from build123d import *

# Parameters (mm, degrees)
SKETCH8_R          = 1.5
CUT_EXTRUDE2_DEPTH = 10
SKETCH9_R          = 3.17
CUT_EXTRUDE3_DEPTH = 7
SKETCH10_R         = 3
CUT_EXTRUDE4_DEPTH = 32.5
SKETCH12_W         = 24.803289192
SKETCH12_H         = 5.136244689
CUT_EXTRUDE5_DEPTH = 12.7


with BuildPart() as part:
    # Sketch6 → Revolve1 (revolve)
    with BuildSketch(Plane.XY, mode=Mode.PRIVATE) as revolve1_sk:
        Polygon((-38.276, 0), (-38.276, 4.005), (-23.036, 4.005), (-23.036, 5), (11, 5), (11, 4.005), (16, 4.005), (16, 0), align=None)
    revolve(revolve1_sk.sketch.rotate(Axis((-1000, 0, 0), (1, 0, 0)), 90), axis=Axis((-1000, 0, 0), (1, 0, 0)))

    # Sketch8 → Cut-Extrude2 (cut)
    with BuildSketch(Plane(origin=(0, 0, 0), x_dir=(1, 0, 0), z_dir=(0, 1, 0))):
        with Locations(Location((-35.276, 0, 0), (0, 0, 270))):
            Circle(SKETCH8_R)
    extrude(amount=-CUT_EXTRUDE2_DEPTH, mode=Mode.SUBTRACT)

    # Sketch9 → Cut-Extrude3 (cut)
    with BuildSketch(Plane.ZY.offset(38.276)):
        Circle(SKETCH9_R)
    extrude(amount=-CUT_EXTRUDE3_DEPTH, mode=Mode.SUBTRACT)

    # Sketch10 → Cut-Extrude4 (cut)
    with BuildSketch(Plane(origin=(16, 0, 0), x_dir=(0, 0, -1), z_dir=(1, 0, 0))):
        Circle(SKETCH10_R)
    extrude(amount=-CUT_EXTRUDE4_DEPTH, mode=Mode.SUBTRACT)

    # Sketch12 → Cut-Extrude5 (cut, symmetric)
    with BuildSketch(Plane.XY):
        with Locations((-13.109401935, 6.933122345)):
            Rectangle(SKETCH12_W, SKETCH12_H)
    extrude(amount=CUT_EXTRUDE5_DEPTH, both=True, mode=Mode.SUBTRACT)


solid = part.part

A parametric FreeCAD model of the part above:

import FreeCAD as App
import Part
import Sketcher
Q = App.Units.Quantity


def add_polygon(sketch, points):
    """Adds a closed chain of lines whose ends are joined by coincident constraints."""
    first, n = sketch.GeometryCount, len(points)
    for a, b in zip(points, points[1:] + points[:1]):
        sketch.addGeometry(Part.LineSegment(App.Vector(*a, 0), App.Vector(*b, 0)), False)
    for i in range(n):
        sketch.addConstraint(Sketcher.Constraint("Coincident", first + i, 2, first + (i + 1) % n, 1))

doc = App.newDocument("Part")
params = doc.addObject("Spreadsheet::Sheet", "Params")
for row, (alias, value) in enumerate([
    ("sketch1_width", "5 mm"),
    ("sketch1_width2", "15.24 mm"),
    ("revolution_angle", "360 deg"),
    ("sketch2_diameter", "3 mm"),
    ("pocket1_length", "10 mm"),
    ("sketch3_diameter", "6.34 mm"),
    ("pocket2_length", "7 mm"),
    ("sketch4_diameter", "6 mm"),
    ("pocket3_length", "32.5 mm"),
    ("pocket4_length", "25.4 mm"),
], start=1):
    params.set(f"A{row}", alias)
    params.set(f"B{row}", "=" + value)
    params.setAlias(f"B{row}", alias)

body = doc.addObject("PartDesign::Body", "Body")

# Sketch on XY plane
sketch1 = body.newObject("Sketcher::SketchObject", "Sketch")
sketch1.AttachmentSupport = (doc.getObject("XY_Plane"), [""])
sketch1.MapMode = "FlatFace"
add_polygon(sketch1, [(-38.276, 4.005), (-38.276, 0), (16, 0), (16, 4.005), (11, 4.005), (11, 5), (-23.036, 5), (-23.036, 4.005)])  # lines 0-7
sketch1.addConstraint(Sketcher.Constraint("Vertical", 0))
sketch1.addConstraint(Sketcher.Constraint("Horizontal", 1))
sketch1.addConstraint(Sketcher.Constraint("Vertical", 2))
sketch1.addConstraint(Sketcher.Constraint("Horizontal", 3))
sketch1.addConstraint(Sketcher.Constraint("Vertical", 4))
sketch1.addConstraint(Sketcher.Constraint("Horizontal", 5))
sketch1.addConstraint(Sketcher.Constraint("Vertical", 6))
sketch1.addConstraint(Sketcher.Constraint("Horizontal", 7))
sketch1.addConstraint(Sketcher.Constraint("PointOnObject", 0, 2, -1))
sketch1.addConstraint(Sketcher.Constraint("Horizontal", 3, 2, 6, 2))
sketch1.addConstraint(Sketcher.Constraint("DistanceX", 3, 2, 3, 1, Q("5 mm")))
sketch1.addConstraint(Sketcher.Constraint("DistanceX", -1, 1, 1, 2, Q("16 mm")))
sketch1.addConstraint(Sketcher.Constraint("DistanceY", -1, 1, 4, 2, Q("5 mm")))
sketch1.addConstraint(Sketcher.Constraint("DistanceX", 7, 2, 7, 1, Q("15.24 mm")))
sketch1.addConstraint(Sketcher.Constraint("DistanceX", 1, 1, 1, 2, Q("54.276 mm")))
sketch1.addConstraint(Sketcher.Constraint("DistanceY", 0, 2, 0, 1, Q("4.005 mm")))
sketch1.setExpression("Constraints[18]", "Params.sketch1_width")
sketch1.setExpression("Constraints[21]", "Params.sketch1_width2")
revolution = body.newObject("PartDesign::Revolution", "Revolution")
revolution.Profile = sketch1
revolution.ReferenceAxis = (sketch1, ["H_Axis"])
revolution.setExpression("Angle", "Params.revolution_angle")

# Sketch on XZ plane
sketch2 = body.newObject("Sketcher::SketchObject", "Sketch001")
sketch2.AttachmentSupport = (doc.getObject("XZ_Plane"), [""])
sketch2.MapMode = "FlatFace"
sketch2.addGeometry(Part.Circle(App.Vector(-35.276, 0, 0), App.Vector(0, 0, 1), 1.5), False)
sketch2.addConstraint(Sketcher.Constraint("PointOnObject", 0, 3, -1))
sketch2.addConstraint(Sketcher.Constraint("Diameter", 0, Q("3 mm")))
sketch2.addConstraint(Sketcher.Constraint("DistanceX", 0, 3, -1, 1, Q("35.276 mm")))
sketch2.setExpression("Constraints[1]", "Params.sketch2_diameter")
pocket1 = body.newObject("PartDesign::Pocket", "Pocket")
pocket1.Profile = sketch2
pocket1.setExpression("Length", "Params.pocket1_length")
pocket1.Reversed = True

# Sketch on YZ plane
sketch3 = body.newObject("Sketcher::SketchObject", "Sketch002")
sketch3.AttachmentSupport = (doc.getObject("YZ_Plane"), [""])
sketch3.MapMode = "FlatFace"
sketch3.AttachmentOffset = App.Placement(App.Vector(0, 0, -38.276), App.Rotation())
sketch3.addGeometry(Part.Circle(App.Vector(0, 0, 0), App.Vector(0, 0, 1), 3.17), False)
sketch3.addConstraint(Sketcher.Constraint("Coincident", 0, 3, -1, 1))
sketch3.addConstraint(Sketcher.Constraint("Diameter", 0, Q("6.34 mm")))
sketch3.setExpression("Constraints[1]", "Params.sketch3_diameter")
pocket2 = body.newObject("PartDesign::Pocket", "Pocket001")
pocket2.Profile = sketch3
pocket2.setExpression("Length", "Params.pocket2_length")
pocket2.Reversed = True

# Sketch on YZ plane
sketch4 = body.newObject("Sketcher::SketchObject", "Sketch003")
sketch4.AttachmentSupport = (doc.getObject("YZ_Plane"), [""])
sketch4.MapMode = "FlatFace"
sketch4.AttachmentOffset = App.Placement(App.Vector(0, 0, 16), App.Rotation())
sketch4.addGeometry(Part.Circle(App.Vector(0, 0, 0), App.Vector(0, 0, 1), 3), False)
sketch4.addConstraint(Sketcher.Constraint("Coincident", 0, 3, -1, 1))
sketch4.addConstraint(Sketcher.Constraint("Diameter", 0, Q("6 mm")))
sketch4.setExpression("Constraints[1]", "Params.sketch4_diameter")
pocket3 = body.newObject("PartDesign::Pocket", "Pocket002")
pocket3.Profile = sketch4
pocket3.setExpression("Length", "Params.pocket3_length")

# Sketch on XY plane
sketch5 = body.newObject("Sketcher::SketchObject", "Sketch004")
sketch5.AttachmentSupport = (doc.getObject("XY_Plane"), [""])
sketch5.MapMode = "FlatFace"
add_polygon(sketch5, [(-25.511047, 9.501245), (-25.511047, 4.365), (-0.707757, 4.365), (-0.707757, 9.501245)])  # lines 0-3
sketch5.addConstraint(Sketcher.Constraint("Vertical", 0))
sketch5.addConstraint(Sketcher.Constraint("Horizontal", 1))
sketch5.addConstraint(Sketcher.Constraint("Vertical", 2))
sketch5.addConstraint(Sketcher.Constraint("Horizontal", 3))
sketch5.addConstraint(Sketcher.Constraint("DistanceY", -1, 1, 0, 2, Q("4.365 mm")))
sketch5.addConstraint(Sketcher.Constraint("DistanceX", 1, 1, 1, 2, Q("24.803289 mm")))
sketch5.addConstraint(Sketcher.Constraint("DistanceY", 0, 2, 0, 1, Q("5.136245 mm")))
sketch5.addConstraint(Sketcher.Constraint("DistanceX", 0, 2, -1, 1, Q("25.511047 mm")))
pocket4 = body.newObject("PartDesign::Pocket", "Pocket003")
pocket4.Profile = sketch5
pocket4.setExpression("Length", "Params.pocket4_length")
pocket4.Midplane = True

doc.recompute()
